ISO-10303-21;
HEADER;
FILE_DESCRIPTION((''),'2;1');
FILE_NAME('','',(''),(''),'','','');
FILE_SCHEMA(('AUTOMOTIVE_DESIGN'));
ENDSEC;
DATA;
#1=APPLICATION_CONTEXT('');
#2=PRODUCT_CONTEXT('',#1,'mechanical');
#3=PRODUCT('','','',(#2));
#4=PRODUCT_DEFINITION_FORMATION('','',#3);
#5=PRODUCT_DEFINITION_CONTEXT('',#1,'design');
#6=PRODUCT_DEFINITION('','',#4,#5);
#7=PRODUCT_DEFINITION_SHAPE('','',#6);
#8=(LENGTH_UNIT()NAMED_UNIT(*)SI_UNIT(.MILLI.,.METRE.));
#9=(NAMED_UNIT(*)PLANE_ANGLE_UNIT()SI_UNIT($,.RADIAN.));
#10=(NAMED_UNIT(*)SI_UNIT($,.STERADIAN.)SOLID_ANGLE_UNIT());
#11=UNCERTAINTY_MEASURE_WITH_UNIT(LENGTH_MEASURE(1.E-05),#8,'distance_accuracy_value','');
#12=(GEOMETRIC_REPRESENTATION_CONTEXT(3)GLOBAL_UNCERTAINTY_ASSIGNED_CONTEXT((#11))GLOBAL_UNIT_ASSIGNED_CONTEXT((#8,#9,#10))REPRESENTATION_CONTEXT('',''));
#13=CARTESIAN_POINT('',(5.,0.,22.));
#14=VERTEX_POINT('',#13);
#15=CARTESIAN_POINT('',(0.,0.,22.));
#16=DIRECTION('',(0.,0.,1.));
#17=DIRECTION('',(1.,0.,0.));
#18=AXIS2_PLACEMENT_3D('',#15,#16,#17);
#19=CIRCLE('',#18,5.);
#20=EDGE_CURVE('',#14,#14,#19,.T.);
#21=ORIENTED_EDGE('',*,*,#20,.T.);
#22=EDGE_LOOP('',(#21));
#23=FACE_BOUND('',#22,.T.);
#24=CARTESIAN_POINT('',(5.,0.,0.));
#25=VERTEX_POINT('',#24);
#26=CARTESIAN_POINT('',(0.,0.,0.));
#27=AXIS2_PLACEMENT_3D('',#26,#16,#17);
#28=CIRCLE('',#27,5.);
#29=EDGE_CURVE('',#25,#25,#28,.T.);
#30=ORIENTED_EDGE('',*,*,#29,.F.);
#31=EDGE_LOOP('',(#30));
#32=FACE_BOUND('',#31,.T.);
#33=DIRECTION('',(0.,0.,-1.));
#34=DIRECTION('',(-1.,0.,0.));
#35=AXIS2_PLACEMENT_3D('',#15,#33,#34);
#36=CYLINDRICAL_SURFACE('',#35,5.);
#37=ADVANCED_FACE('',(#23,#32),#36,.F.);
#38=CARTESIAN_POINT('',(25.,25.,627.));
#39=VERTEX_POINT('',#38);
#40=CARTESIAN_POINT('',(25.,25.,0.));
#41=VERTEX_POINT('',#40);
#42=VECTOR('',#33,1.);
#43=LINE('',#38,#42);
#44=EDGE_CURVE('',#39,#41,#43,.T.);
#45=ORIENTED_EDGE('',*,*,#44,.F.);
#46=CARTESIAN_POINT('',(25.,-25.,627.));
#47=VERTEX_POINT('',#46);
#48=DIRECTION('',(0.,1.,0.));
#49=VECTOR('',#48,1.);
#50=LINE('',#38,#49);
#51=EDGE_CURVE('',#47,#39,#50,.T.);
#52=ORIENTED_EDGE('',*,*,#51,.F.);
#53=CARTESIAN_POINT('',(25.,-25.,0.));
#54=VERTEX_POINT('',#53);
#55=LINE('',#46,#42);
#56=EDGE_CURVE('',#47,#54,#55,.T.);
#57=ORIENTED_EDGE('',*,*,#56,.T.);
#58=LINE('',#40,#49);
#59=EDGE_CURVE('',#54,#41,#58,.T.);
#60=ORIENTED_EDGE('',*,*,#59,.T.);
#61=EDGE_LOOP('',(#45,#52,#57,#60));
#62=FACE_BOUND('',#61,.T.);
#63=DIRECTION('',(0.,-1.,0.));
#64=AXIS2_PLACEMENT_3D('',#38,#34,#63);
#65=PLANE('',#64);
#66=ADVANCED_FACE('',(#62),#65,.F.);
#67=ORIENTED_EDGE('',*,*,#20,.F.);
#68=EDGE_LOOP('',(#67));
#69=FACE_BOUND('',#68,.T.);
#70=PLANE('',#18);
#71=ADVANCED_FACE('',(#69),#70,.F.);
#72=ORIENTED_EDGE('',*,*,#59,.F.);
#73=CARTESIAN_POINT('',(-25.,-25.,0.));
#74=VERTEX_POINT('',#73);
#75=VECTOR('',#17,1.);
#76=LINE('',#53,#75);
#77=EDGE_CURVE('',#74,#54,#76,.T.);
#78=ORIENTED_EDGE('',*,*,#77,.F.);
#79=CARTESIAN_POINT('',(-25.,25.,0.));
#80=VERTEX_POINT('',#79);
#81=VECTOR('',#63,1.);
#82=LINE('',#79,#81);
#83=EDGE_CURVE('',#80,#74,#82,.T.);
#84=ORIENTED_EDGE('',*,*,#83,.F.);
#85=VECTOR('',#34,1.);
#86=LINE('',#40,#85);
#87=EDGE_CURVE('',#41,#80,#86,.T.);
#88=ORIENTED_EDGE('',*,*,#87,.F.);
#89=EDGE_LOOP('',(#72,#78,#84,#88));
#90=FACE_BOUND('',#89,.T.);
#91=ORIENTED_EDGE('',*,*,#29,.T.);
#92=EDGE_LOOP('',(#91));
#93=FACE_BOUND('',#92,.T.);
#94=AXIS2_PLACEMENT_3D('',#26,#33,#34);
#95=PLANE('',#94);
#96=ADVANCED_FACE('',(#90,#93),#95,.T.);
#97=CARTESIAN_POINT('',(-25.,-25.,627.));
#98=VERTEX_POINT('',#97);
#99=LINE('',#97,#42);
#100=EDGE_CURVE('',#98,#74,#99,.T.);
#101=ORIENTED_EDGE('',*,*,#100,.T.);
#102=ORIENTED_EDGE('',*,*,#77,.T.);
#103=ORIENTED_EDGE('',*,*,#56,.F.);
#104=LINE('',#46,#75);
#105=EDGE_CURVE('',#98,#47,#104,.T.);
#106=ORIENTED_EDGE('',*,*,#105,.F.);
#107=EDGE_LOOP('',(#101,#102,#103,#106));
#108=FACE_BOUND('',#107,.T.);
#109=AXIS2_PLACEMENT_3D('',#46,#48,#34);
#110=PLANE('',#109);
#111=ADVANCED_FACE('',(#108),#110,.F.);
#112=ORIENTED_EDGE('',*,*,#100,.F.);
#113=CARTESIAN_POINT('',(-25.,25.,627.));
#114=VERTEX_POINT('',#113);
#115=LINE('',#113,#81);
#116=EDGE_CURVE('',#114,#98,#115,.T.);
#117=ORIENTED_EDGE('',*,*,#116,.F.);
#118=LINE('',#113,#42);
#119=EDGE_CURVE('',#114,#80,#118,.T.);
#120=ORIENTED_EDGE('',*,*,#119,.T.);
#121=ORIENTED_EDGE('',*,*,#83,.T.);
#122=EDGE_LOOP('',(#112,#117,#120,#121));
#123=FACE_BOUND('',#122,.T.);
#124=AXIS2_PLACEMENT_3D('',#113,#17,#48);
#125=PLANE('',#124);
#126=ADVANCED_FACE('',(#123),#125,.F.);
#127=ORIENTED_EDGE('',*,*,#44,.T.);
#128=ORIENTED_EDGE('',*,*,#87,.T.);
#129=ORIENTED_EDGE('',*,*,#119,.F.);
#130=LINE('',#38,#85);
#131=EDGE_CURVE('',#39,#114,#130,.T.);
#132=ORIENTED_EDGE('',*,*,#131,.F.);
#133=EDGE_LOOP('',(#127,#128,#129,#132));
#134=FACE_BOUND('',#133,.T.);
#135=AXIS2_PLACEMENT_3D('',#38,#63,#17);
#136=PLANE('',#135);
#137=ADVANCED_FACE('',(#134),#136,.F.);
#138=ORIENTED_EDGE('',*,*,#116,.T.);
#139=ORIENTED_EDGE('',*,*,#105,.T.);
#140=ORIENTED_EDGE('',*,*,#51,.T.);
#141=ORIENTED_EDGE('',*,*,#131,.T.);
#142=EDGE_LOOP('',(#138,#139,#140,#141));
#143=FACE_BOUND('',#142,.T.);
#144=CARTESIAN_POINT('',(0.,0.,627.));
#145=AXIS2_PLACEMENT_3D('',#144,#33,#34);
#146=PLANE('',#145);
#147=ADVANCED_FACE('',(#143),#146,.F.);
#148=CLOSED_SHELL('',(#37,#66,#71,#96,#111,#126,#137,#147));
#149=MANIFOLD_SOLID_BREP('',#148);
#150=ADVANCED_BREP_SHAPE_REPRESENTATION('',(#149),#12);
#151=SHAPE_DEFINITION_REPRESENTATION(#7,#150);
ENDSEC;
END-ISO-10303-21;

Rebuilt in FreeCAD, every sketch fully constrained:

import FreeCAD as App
import Part
import Sketcher

doc = App.newDocument("Part")
body = doc.addObject("PartDesign::Body", "Body")

# Sketch on XY plane
sketch1 = body.newObject("Sketcher::SketchObject", "Sketch")
sketch1.AttachmentSupport = (doc.getObject("XY_Plane"), [""])
sketch1.MapMode = "FlatFace"
sketch1.addGeometry([
    Part.LineSegment(App.Vector(-25, 25, 0), App.Vector(-25, -25, 0)),
    Part.LineSegment(App.Vector(-25, -25, 0), App.Vector(25, -25, 0)),
    Part.LineSegment(App.Vector(25, -25, 0), App.Vector(25, 25, 0)),
    Part.LineSegment(App.Vector(25, 25, 0), App.Vector(-25, 25, 0)),
], False)
sketch1.addConstraint([
    Sketcher.Constraint("Coincident", 0, 2, 1, 1),
    Sketcher.Constraint("Coincident", 1, 2, 2, 1),
    Sketcher.Constraint("Coincident", 2, 2, 3, 1),
    Sketcher.Constraint("Coincident", 3, 2, 0, 1),
    Sketcher.Constraint("Vertical", 0),
    Sketcher.Constraint("Horizontal", 1),
    Sketcher.Constraint("Vertical", 2),
    Sketcher.Constraint("Horizontal", 3),
    Sketcher.Constraint("Symmetric", 0, 2, 2, 2, -1, 1),
    Sketcher.Constraint("Equal", 3, 0),
    Sketcher.Constraint("DistanceX", 1, 1, 1, 2, 50.0),
])
pad1 = body.newObject("PartDesign::Pad", "Pad")
pad1.Profile = sketch1
pad1.Length = 627

# Sketch on XY plane
sketch2 = body.newObject("Sketcher::SketchObject", "Sketch001")
sketch2.AttachmentSupport = (doc.getObject("XY_Plane"), [""])
sketch2.MapMode = "FlatFace"
sketch2.addGeometry(Part.Circle(App.Vector(0, 0, 0), App.Vector(0, 0, 1), 5), False)
sketch2.addConstraint([
    Sketcher.Constraint("Coincident", 0, 3, -1, 1),
    Sketcher.Constraint("Diameter", 0, 10.0),
])
pocket1 = body.newObject("PartDesign::Pocket", "Pocket")
pocket1.Profile = sketch2
pocket1.Length = 22
pocket1.Reversed = True

doc.recompute()
